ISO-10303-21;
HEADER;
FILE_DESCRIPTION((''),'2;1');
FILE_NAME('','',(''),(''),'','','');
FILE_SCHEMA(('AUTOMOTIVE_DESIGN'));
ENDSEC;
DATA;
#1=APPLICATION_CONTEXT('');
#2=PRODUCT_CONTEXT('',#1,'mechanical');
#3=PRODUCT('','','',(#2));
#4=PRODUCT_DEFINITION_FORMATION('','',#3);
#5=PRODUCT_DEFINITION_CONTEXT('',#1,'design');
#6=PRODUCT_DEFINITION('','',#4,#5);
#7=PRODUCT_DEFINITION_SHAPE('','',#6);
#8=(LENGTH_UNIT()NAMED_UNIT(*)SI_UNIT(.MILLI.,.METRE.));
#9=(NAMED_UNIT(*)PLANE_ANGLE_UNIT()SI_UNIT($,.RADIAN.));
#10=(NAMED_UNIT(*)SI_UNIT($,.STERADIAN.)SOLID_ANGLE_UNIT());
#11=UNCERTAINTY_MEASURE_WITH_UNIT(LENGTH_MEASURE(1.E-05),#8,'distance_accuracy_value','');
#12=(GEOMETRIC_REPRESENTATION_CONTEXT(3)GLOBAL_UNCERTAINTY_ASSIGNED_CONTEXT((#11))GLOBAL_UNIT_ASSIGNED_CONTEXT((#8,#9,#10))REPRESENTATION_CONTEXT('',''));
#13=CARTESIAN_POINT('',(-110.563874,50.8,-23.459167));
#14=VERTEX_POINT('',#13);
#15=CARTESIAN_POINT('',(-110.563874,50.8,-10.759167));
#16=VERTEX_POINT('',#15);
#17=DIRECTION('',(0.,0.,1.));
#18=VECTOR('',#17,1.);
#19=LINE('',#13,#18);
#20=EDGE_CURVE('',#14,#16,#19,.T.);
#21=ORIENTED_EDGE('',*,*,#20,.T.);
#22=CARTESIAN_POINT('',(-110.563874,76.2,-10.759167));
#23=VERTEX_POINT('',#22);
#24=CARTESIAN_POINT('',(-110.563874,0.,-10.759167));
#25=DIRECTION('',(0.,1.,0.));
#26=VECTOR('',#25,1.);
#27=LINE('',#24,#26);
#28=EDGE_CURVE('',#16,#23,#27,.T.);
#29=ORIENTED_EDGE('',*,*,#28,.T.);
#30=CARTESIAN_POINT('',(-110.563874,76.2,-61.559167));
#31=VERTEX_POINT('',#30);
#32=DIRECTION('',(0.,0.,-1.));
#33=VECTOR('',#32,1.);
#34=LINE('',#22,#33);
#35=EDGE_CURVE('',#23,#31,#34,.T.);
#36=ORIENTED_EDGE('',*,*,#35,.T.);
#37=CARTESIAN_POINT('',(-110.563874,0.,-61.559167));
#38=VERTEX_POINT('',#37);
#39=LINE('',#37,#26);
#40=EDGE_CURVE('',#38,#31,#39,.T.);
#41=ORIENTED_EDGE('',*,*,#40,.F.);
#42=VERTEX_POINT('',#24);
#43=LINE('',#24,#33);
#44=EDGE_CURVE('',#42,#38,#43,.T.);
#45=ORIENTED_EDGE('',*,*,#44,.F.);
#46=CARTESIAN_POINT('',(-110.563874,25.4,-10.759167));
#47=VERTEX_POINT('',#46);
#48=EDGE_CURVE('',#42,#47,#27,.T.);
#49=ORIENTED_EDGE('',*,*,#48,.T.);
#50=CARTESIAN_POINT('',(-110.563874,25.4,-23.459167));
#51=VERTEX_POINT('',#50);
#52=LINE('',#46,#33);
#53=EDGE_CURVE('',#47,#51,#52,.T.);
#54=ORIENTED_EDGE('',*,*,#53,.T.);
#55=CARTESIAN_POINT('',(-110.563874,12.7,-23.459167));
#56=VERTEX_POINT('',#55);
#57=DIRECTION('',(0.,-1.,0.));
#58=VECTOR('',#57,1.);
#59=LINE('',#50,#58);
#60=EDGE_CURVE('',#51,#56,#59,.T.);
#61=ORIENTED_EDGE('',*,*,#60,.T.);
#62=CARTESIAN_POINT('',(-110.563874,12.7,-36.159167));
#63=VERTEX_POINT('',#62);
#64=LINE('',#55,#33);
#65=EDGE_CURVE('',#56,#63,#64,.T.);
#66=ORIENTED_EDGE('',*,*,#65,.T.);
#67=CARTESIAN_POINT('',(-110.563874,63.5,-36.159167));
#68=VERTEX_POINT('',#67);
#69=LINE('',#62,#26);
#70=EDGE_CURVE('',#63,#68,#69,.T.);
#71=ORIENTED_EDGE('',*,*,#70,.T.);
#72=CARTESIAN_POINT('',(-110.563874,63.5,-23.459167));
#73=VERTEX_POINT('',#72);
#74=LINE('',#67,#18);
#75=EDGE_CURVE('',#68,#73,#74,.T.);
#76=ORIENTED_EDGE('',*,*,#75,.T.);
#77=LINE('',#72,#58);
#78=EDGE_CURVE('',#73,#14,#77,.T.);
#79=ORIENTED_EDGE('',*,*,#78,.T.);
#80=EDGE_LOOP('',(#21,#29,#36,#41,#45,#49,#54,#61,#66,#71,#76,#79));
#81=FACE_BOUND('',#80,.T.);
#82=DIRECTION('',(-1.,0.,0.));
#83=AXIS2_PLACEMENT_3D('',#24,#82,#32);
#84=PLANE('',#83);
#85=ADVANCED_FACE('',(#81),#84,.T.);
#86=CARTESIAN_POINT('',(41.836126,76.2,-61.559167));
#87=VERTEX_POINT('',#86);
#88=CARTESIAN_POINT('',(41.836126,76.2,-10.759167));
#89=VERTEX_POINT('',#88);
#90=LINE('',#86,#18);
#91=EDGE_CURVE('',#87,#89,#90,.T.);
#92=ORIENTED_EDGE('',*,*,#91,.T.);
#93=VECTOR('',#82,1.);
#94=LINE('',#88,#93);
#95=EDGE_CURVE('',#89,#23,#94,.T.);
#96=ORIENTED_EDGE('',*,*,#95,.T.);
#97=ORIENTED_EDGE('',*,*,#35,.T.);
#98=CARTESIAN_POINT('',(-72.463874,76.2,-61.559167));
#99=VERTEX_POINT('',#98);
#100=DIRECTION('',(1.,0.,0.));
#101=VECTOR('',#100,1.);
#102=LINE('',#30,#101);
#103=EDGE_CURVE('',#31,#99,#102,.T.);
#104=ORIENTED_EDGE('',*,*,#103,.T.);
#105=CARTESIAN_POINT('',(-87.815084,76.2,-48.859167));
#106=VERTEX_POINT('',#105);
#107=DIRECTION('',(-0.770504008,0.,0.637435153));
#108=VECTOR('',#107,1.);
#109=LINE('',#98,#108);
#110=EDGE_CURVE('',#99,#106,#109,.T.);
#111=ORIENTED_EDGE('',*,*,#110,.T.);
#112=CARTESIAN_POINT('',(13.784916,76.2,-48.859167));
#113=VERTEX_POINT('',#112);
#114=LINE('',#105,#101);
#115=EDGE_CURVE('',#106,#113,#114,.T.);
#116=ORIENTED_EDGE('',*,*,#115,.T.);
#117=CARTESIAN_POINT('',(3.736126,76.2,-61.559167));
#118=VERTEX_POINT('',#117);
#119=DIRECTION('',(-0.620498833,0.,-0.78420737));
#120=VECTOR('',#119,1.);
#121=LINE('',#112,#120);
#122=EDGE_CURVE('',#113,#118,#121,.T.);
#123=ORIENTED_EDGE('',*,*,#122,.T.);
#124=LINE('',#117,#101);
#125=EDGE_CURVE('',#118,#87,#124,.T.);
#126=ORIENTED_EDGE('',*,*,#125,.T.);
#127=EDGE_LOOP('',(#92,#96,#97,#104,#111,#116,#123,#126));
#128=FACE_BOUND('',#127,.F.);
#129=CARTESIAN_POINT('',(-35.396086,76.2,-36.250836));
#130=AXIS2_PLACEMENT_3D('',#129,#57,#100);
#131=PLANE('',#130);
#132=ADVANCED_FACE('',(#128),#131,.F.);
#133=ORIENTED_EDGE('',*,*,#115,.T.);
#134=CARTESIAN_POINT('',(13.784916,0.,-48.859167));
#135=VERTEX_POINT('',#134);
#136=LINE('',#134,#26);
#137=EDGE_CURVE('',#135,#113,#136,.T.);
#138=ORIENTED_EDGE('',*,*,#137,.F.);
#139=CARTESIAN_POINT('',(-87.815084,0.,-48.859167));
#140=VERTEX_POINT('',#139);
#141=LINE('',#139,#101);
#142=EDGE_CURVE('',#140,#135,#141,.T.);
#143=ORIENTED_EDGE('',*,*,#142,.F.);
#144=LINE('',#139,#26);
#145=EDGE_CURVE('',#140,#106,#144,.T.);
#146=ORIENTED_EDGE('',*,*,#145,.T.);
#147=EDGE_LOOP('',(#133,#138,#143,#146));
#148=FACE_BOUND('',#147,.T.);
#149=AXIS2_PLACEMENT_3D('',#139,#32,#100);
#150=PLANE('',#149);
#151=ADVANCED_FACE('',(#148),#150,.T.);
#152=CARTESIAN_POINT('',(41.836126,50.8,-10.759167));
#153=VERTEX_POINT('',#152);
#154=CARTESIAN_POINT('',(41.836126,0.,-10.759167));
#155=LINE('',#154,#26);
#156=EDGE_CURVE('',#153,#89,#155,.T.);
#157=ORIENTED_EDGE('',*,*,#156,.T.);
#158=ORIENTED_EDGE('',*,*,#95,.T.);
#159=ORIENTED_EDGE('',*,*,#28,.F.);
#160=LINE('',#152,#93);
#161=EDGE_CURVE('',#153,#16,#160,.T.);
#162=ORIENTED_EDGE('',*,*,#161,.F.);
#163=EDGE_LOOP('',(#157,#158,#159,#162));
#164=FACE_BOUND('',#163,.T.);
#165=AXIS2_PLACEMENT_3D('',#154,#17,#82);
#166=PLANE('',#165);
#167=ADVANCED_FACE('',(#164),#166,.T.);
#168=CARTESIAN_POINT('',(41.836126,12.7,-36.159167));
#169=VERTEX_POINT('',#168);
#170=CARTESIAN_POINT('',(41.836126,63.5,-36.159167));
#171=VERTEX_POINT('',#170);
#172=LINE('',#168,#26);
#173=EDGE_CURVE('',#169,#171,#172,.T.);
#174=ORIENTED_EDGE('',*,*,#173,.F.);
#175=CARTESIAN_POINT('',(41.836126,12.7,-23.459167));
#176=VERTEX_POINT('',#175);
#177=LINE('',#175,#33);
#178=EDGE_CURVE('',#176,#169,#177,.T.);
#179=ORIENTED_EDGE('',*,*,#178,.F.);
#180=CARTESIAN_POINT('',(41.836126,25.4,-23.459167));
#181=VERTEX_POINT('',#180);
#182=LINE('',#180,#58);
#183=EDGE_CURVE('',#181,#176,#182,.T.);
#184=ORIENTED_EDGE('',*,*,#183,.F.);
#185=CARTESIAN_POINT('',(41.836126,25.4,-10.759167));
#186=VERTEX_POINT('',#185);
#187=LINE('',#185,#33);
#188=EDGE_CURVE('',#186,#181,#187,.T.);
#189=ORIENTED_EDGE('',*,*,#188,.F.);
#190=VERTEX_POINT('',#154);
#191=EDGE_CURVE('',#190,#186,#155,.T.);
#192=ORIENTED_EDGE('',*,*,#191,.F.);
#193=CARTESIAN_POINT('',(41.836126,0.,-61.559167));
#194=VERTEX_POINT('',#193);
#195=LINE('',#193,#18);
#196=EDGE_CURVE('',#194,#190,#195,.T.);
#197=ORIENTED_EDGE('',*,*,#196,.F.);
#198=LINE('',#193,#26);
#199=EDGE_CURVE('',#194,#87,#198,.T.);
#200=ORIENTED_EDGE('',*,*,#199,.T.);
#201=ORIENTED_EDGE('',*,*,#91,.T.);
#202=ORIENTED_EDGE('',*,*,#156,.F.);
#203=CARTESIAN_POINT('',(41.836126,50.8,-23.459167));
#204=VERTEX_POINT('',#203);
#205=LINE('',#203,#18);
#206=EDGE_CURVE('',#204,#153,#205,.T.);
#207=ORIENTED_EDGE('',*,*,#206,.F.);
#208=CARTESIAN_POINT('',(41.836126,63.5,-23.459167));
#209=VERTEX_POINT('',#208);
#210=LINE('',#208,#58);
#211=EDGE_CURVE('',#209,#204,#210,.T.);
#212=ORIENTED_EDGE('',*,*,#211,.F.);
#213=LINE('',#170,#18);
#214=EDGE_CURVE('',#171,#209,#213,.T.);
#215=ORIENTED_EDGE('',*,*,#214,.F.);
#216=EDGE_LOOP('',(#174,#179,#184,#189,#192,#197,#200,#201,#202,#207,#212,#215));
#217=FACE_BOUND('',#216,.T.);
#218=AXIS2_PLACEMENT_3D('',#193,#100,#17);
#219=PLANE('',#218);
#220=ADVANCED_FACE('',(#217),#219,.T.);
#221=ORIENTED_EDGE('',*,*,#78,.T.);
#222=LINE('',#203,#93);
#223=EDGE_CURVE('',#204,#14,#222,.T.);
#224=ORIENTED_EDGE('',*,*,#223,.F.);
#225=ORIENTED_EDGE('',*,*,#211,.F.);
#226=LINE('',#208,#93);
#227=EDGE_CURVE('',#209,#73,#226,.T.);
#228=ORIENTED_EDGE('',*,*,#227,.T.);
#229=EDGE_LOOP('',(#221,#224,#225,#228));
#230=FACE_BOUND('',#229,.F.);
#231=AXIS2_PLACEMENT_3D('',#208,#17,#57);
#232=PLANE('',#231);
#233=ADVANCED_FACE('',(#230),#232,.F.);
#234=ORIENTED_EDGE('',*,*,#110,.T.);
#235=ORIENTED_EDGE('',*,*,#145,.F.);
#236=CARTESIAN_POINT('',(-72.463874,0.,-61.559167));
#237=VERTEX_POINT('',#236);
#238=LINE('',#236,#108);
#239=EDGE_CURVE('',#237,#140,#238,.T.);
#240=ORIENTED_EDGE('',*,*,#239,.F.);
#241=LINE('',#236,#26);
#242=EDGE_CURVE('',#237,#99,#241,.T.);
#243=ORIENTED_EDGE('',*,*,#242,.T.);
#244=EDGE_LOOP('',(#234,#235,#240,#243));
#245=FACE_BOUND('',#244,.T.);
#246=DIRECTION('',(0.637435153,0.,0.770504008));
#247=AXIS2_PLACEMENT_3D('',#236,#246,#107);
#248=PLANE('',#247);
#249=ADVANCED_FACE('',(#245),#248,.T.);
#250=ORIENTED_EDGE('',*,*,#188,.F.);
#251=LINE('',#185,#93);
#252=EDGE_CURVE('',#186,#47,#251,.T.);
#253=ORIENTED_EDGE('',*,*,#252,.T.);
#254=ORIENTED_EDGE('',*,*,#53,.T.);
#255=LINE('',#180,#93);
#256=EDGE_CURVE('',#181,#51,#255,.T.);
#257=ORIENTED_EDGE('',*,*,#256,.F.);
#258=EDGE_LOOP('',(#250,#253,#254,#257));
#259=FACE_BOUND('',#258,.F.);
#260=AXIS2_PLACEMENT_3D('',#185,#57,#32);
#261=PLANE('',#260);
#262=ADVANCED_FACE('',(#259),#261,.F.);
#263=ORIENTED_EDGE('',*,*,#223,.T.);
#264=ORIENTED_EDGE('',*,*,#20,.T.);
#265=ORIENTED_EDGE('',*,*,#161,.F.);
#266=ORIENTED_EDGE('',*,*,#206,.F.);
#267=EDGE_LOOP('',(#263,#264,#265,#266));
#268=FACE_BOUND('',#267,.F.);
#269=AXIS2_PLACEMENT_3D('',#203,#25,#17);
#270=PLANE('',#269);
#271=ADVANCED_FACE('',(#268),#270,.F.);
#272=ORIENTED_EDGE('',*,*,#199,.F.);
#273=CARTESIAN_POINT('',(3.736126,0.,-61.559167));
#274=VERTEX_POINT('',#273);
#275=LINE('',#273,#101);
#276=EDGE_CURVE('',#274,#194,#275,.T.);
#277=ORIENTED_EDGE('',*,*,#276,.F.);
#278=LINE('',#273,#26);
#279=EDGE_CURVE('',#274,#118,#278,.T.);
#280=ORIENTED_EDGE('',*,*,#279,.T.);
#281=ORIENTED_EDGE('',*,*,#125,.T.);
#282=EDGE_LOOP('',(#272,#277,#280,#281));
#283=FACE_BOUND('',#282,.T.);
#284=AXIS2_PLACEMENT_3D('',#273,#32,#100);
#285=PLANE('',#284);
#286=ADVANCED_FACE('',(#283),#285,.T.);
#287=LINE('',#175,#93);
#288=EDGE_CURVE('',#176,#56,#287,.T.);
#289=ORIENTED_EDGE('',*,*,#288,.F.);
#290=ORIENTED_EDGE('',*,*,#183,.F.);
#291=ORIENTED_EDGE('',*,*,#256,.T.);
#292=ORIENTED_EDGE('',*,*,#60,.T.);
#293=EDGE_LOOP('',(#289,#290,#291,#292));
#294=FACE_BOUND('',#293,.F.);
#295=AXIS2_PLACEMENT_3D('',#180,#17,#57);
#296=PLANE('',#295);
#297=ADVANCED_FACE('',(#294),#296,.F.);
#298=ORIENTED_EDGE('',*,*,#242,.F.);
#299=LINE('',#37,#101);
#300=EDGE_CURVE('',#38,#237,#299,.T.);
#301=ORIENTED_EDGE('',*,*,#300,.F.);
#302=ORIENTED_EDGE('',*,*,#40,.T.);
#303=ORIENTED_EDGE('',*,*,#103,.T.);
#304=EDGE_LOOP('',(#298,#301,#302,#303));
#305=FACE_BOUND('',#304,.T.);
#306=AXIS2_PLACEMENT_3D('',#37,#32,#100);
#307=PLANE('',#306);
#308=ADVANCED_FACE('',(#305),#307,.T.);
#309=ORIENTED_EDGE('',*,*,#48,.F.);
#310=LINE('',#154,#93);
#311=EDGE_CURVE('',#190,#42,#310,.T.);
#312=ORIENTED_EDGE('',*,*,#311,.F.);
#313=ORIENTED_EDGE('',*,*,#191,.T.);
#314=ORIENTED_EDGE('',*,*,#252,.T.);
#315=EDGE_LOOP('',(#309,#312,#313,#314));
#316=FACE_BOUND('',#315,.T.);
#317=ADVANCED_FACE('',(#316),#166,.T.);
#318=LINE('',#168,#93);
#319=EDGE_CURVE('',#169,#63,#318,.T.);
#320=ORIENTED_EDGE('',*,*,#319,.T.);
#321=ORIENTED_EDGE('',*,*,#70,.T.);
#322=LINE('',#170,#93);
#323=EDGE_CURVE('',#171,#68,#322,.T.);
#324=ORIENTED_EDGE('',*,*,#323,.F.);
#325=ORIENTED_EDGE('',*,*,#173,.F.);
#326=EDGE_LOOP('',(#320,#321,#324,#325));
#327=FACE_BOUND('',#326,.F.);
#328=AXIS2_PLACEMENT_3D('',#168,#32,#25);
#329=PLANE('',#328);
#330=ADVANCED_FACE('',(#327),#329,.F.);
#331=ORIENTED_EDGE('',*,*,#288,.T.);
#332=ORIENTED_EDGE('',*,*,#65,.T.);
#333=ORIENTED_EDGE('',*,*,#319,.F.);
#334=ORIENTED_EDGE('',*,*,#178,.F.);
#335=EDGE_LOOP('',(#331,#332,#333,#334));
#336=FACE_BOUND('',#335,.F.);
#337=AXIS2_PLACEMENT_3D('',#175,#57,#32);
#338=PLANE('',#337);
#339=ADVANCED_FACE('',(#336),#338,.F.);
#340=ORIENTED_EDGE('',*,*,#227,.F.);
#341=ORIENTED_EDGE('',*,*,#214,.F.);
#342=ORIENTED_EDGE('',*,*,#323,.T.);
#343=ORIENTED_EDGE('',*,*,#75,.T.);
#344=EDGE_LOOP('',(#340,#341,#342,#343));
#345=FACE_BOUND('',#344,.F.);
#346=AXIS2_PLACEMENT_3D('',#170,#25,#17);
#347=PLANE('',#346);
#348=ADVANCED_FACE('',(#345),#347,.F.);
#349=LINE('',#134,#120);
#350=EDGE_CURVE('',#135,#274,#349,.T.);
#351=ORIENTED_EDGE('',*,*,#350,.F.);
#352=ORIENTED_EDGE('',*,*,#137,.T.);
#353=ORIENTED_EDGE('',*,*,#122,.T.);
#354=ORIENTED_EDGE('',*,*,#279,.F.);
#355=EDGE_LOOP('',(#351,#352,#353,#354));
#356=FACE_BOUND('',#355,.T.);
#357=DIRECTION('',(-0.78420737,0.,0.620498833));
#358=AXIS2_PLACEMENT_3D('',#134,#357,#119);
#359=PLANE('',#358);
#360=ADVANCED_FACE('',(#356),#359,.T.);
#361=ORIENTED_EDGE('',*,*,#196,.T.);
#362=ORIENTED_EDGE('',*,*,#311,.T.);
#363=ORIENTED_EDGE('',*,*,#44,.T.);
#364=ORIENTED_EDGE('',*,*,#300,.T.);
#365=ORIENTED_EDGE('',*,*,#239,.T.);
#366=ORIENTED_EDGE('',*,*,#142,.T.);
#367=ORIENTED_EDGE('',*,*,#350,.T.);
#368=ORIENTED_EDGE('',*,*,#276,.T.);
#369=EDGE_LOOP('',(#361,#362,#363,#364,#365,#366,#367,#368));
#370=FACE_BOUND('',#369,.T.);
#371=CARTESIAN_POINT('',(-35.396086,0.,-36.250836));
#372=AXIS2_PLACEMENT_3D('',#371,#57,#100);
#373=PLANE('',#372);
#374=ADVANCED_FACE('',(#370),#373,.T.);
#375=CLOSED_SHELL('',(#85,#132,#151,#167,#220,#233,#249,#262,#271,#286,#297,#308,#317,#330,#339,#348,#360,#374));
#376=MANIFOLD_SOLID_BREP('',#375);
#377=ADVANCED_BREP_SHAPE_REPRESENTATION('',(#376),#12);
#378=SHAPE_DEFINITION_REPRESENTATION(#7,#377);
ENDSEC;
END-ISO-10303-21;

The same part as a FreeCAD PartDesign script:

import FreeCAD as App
import Part
import Sketcher
from FreeCAD import Vector
Q = App.Units.Quantity


def add_polygon(sketch, points):
    """Adds a closed chain of lines whose ends are joined by coincident constraints."""
    first, n = sketch.GeometryCount, len(points)
    for a, b in zip(points, points[1:] + points[:1]):
        sketch.addGeometry(Part.LineSegment(App.Vector(*a, 0), App.Vector(*b, 0)), False)
    for i in range(n):
        sketch.addConstraint(Sketcher.Constraint("Coincident", first + i, 2, first + (i + 1) % n, 1))

doc = App.newDocument("Part")
body = doc.addObject("PartDesign::Body", "Body")

# Sketch on XZ plane
sketch1 = body.newObject("Sketcher::SketchObject", "Sketch")
sketch1.AttachmentSupport = (doc.getObject("XZ_Plane"), [""])
sketch1.MapMode = "FlatFace"
add_polygon(sketch1, [(4, -62), (42, -62), (42, -11), (-111, -11), (-111, -62), (-72, -62), (-88, -49), (14, -49)])  # lines 0-7
sketch1.addConstraint([
    Sketcher.Constraint("Horizontal", 0),
    Sketcher.Constraint("Vertical", 1),
    Sketcher.Constraint("Horizontal", 2),
    Sketcher.Constraint("Vertical", 3),
    Sketcher.Constraint("Horizontal", 4),
    Sketcher.Constraint("Horizontal", 6),
    Sketcher.Constraint("Horizontal", 0, 2, 3, 2),
    Sketcher.Constraint("Equal", 0, 4),
    Sketcher.Constraint("DistanceX", 2, 2, 2, 1, Q("6 in")),
    Sketcher.Constraint("DistanceX", 6, 1, 6, 2, Q("4 in")),
    Sketcher.Constraint("DistanceY", 1, 1, 1, 2, Q("2 in")),
    Sketcher.Constraint("DistanceX", 0, 1, 0, 2, Q("1.5 in")),
    Sketcher.Constraint("DistanceY", 4, 2, 5, 2, Q("0.5 in")),
    Sketcher.Constraint("DistanceX", 5, 2, 4, 2, Q("15.35121 mm")),
    Sketcher.Constraint("DistanceX", -1, 1, 0, 2, Q("41.836126 mm")),
    Sketcher.Constraint("DistanceY", 0, 2, -1, 1, Q("61.559167 mm")),
])
pad1 = body.newObject("PartDesign::Pad", "Pad")
pad1.Profile = sketch1
pad1.Length = Q("3 in")
pad1.Reversed = True

# Sketch on YZ plane
sketch2 = body.newObject("Sketcher::SketchObject", "Sketch001")
sketch2.AttachmentSupport = (doc.getObject("YZ_Plane"), [""])
sketch2.MapMode = "FlatFace"
sketch2.AttachmentOffset = App.Placement(Vector(0, 0, 41.836126), App.Rotation())
add_polygon(sketch2, [(13, -23), (13, -36), (64, -36), (64, -23), (51, -23), (51, -11), (25, -11), (25, -23)])  # lines 0-7
sketch2.addConstraint([
    Sketcher.Constraint("Vertical", 0),
    Sketcher.Constraint("Horizontal", 1),
    Sketcher.Constraint("Vertical", 2),
    Sketcher.Constraint("Horizontal", 3),
    Sketcher.Constraint("Vertical", 4),
    Sketcher.Constraint("Horizontal", 5),
    Sketcher.Constraint("Vertical", 6),
    Sketcher.Constraint("Horizontal", 7),
    Sketcher.Constraint("Horizontal", 3, 2, 6, 2),
    Sketcher.Constraint("Equal", 3, 7),
    Sketcher.Constraint("Equal", 7, 0),
    Sketcher.Constraint("Equal", 2, 4),
    Sketcher.Constraint("DistanceX", 1, 1, 1, 2, Q("2 in")),
    Sketcher.Constraint("DistanceX", 5, 2, 5, 1, Q("1 in")),
    Sketcher.Constraint("DistanceX", -1, 1, 3, 2, Q("2 in")),
    Sketcher.Constraint("DistanceY", 0, 2, -1, 1, Q("36.159167 mm")),
])
pocket1 = body.newObject("PartDesign::Pocket", "Pocket")
pocket1.Profile = sketch2
pocket1.Length = Q("6 in")

doc.recompute()
